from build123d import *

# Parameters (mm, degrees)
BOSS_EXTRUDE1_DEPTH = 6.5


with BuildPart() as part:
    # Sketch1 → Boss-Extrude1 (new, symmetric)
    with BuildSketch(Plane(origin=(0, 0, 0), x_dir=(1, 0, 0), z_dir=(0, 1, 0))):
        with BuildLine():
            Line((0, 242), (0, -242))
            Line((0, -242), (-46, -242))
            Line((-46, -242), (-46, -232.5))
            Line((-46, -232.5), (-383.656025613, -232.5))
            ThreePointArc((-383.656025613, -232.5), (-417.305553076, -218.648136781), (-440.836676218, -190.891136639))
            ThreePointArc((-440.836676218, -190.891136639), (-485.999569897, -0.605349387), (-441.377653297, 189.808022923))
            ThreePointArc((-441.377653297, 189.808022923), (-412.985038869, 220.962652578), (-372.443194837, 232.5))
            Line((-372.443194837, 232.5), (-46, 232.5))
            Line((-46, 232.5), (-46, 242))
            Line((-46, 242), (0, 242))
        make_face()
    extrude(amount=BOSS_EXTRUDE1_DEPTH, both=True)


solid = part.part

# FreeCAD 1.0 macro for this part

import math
import FreeCAD as App
import Part
import Sketcher

V = App.Vector
Q = App.Units.Quantity

doc = App.newDocument("Part")
body = doc.addObject("PartDesign::Body", "Body")

sketch1 = doc.addObject("Sketcher::SketchObject", "Sketch")
body.addObject(sketch1)
sketch1.AttachmentSupport = (doc.XZ_Plane, [""])
sketch1.MapMode = "FlatFace"
sketch1.addGeometry([
    Part.LineSegment(V(0, 242, 0), V(0, -242, 0)),
    Part.LineSegment(V(0, -242, 0), V(-46, -242, 0)),
    Part.LineSegment(V(-46, -242, 0), V(-46, -232, 0)),
    Part.LineSegment(V(-46, -232, 0), V(-372, -232, 0)),
    Part.ArcOfCircle(Part.Circle(V(-372, -156, 0), V(0, 0, 1), 77), math.radians(-154), math.radians(-90)),
    Part.ArcOfCircle(Part.Circle(V(-60, 0, 0), V(0, 0, 1), 426), math.radians(153), math.radians(206)),
    Part.ArcOfCircle(Part.Circle(V(-372, 156, 0), V(0, 0, 1), 77), math.radians(99), math.radians(153)),
    Part.LineSegment(V(-384, 232, 0), V(-46, 232, 0)),
    Part.LineSegment(V(-46, 232, 0), V(-46, 242, 0)),
    Part.LineSegment(V(-46, 242, 0), V(0, 242, 0)),
], False)
sketch1.addConstraint([
    Sketcher.Constraint("Coincident", 0, 2, 1, 1),
    Sketcher.Constraint("Coincident", 1, 2, 2, 1),
    Sketcher.Constraint("Coincident", 2, 2, 3, 1),
    Sketcher.Constraint("Tangent", 3, 2, 4, 2),
    Sketcher.Constraint("Tangent", 4, 1, 5, 2),
    Sketcher.Constraint("Tangent", 5, 1, 6, 2),
    Sketcher.Constraint("Coincident", 6, 1, 7, 1),
    Sketcher.Constraint("Coincident", 7, 2, 8, 1),
    Sketcher.Constraint("Coincident", 8, 2, 9, 1),
    Sketcher.Constraint("Coincident", 9, 2, 0, 1),
    Sketcher.Constraint("Vertical", 0),
    Sketcher.Constraint("Horizontal", 1),
    Sketcher.Constraint("Vertical", 2),
    Sketcher.Constraint("Horizontal", 3),
    Sketcher.Constraint("Horizontal", 7),
    Sketcher.Constraint("Vertical", 8),
    Sketcher.Constraint("Horizontal", 9),
    Sketcher.Constraint("Equal", 4, 6),
    Sketcher.Constraint("Symmetric", 0, 2, 9, 2, -1, 1),
    Sketcher.Constraint("Symmetric", 2, 2, 7, 2, -1),
    Sketcher.Constraint("PointOnObject", 5, 3, -1),
    Sketcher.Constraint("Radius", 4, Q("77 mm")),
    Sketcher.Constraint("Radius", 5, Q("426 mm")),
    Sketcher.Constraint("DistanceX", 1, 2, 1, 1, Q("46 mm")),
    Sketcher.Constraint("DistanceY", 0, 2, 0, 1, Q("484 mm")),
    Sketcher.Constraint("DistanceY", 2, 1, 2, 2, Q("9.5 mm")),
    Sketcher.Constraint("DistanceX", 5, 3, -1, 1, Q("60 mm")),
    Sketcher.Constraint("DistanceX", 6, 3, -1, 1, Q("372 mm")),
])
pad1 = doc.addObject("PartDesign::Pad", "Pad")
body.addObject(pad1)
pad1.Profile = sketch1
pad1.Length = 13
pad1.Midplane = True

doc.recompute()
